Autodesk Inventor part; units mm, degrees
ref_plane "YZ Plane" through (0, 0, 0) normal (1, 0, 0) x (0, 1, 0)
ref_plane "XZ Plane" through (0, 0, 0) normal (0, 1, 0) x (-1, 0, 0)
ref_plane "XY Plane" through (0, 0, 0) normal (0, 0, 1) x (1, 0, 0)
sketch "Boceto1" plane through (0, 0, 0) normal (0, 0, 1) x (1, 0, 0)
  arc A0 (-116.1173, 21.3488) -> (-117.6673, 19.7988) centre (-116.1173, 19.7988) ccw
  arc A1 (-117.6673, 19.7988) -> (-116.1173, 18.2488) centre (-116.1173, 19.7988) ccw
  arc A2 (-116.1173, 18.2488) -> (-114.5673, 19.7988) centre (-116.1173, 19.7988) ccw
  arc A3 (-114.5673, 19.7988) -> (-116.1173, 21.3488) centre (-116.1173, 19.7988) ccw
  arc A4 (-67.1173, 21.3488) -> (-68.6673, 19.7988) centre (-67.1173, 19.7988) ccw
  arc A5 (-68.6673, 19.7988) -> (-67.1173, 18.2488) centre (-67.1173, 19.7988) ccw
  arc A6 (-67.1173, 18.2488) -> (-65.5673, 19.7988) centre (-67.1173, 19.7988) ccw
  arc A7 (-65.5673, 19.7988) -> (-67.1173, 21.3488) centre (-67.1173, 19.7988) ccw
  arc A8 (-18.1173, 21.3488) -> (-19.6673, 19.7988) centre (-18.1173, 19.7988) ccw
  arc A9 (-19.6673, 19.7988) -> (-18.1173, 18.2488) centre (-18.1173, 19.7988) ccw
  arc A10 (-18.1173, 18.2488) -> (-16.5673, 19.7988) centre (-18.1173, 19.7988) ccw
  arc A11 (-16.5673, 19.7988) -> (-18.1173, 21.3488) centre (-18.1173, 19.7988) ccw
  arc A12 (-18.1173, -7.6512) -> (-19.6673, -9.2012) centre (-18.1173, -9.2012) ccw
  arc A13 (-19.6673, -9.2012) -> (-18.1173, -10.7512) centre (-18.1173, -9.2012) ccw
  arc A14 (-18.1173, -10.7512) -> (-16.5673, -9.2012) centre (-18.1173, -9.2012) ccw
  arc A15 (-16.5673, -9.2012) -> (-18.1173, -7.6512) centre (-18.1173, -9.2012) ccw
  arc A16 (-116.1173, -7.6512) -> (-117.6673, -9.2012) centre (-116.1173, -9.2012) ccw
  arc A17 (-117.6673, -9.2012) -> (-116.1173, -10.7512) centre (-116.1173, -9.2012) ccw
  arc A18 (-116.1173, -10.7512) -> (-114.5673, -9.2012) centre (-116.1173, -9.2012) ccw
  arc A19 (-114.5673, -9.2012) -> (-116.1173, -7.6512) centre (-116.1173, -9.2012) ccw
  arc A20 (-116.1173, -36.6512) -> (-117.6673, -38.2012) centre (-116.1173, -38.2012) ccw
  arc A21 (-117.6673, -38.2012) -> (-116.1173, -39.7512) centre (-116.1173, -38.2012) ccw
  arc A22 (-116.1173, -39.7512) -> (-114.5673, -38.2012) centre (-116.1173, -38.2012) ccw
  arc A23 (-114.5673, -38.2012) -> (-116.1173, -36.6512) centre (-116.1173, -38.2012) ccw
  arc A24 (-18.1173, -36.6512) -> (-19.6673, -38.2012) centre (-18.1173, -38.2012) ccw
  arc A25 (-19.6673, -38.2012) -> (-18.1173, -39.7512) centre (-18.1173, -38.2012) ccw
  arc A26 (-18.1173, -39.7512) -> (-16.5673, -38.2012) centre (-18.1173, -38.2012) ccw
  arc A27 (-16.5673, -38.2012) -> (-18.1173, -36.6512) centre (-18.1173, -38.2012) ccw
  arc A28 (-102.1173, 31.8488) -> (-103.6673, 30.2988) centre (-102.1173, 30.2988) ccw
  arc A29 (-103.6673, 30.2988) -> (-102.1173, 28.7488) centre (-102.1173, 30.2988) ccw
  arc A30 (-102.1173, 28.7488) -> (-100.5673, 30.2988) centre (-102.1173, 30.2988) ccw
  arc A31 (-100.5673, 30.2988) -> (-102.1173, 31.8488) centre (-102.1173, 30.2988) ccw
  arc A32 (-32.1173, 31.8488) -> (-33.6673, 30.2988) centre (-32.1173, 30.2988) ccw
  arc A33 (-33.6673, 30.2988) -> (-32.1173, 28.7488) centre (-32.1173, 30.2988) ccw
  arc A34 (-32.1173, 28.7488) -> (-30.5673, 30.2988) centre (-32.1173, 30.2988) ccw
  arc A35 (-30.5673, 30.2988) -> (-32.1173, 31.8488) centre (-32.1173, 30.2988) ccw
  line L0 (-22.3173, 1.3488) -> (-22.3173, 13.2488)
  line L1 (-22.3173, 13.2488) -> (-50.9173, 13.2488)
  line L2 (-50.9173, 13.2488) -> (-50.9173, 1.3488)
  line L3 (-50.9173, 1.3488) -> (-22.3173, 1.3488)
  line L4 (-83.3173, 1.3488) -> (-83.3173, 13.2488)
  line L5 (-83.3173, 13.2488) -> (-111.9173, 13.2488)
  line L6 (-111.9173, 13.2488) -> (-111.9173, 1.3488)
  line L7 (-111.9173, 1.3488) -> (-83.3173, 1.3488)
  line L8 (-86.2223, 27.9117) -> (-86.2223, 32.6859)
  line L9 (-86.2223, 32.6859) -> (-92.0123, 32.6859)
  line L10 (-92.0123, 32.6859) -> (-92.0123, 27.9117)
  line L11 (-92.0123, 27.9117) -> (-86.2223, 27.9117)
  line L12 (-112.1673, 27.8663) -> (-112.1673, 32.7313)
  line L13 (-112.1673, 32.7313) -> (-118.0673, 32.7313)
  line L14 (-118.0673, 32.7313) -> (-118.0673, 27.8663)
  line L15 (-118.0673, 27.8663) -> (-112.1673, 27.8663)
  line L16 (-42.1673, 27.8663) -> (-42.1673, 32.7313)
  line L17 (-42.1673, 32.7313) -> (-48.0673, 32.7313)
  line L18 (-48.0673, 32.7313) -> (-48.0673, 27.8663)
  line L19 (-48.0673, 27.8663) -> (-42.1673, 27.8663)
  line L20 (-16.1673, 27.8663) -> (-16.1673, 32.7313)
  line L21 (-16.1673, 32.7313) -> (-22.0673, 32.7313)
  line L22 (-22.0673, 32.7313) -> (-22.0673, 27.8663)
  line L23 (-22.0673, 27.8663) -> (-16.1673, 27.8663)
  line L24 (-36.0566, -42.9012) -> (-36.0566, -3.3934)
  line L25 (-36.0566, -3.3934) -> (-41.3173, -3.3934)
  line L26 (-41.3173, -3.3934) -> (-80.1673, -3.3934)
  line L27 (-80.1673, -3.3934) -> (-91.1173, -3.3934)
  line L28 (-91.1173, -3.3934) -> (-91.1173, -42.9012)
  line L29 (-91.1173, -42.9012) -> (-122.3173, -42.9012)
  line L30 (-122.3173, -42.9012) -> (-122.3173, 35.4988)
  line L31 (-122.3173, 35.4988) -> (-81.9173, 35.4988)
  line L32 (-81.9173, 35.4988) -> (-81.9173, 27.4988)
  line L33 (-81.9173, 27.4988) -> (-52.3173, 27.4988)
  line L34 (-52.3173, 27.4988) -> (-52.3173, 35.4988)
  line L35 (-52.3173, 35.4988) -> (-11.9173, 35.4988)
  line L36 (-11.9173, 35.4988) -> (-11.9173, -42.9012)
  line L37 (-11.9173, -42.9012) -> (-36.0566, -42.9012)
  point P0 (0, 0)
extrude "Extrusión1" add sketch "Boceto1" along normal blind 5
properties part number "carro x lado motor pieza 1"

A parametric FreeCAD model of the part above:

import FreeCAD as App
import Part
import Sketcher


def add_polygon(sketch, points):
    """Adds a closed chain of lines whose ends are joined by coincident constraints."""
    first, n = sketch.GeometryCount, len(points)
    for a, b in zip(points, points[1:] + points[:1]):
        sketch.addGeometry(Part.LineSegment(App.Vector(*a, 0), App.Vector(*b, 0)), False)
    for i in range(n):
        sketch.addConstraint(Sketcher.Constraint("Coincident", first + i, 2, first + (i + 1) % n, 1))

doc = App.newDocument("Part")
body = doc.addObject("PartDesign::Body", "Body")

# Sketch on XY plane
sketch1 = doc.addObject("Sketcher::SketchObject", "Sketch")
body.addObject(sketch1)
sketch1.AttachmentSupport = (doc.XY_Plane, [""])
sketch1.MapMode = "FlatFace"
add_polygon(sketch1, [(-36.1, -3.4), (-36.1, -42.9), (-11.9, -42.9), (-11.9, 35.5), (-52.3, 35.5), (-52.3, 27.5), (-81.9, 27.5), (-81.9, 35.5), (-122.3, 35.5), (-122.3, -42.9), (-91.1, -42.9), (-91.1, -3.4)])  # lines 0-11
sketch1.addGeometry(Part.Circle(App.Vector(-116.1, -38.2, 0), App.Vector(0, 0, 1), 1.5), False)  # 12
sketch1.addGeometry(Part.Circle(App.Vector(-116.1, -9.2, 0), App.Vector(0, 0, 1), 1.5), False)  # 13
sketch1.addGeometry(Part.Circle(App.Vector(-18.1, -38.2, 0), App.Vector(0, 0, 1), 1.6), False)  # 14
sketch1.addGeometry(Part.Circle(App.Vector(-18.1, -9.2, 0), App.Vector(0, 0, 1), 1.5), False)  # 15
add_polygon(sketch1, [(-83.3, 13.2), (-83.3, 1.3), (-111.9, 1.3), (-111.9, 13.2)])  # lines 16-19
sketch1.addGeometry(Part.Circle(App.Vector(-116.1, 19.8, 0), App.Vector(0, 0, 1), 1.6), False)  # 20
add_polygon(sketch1, [(-112.2, 32.7), (-112.2, 27.9), (-118.1, 27.9), (-118.1, 32.7)])  # lines 21-24
sketch1.addGeometry(Part.Circle(App.Vector(-102.1, 30.3, 0), App.Vector(0, 0, 1), 1.6), False)  # 25
add_polygon(sketch1, [(-86.2, 32.7), (-86.2, 27.9), (-92, 27.9), (-92, 32.7)])  # lines 26-29
add_polygon(sketch1, [(-22.3, 13.2), (-22.3, 1.3), (-50.9, 1.3), (-50.9, 13.2)])  # lines 30-33
sketch1.addGeometry(Part.Circle(App.Vector(-67.1, 19.8, 0), App.Vector(0, 0, 1), 1.6), False)  # 34
add_polygon(sketch1, [(-42.2, 32.7), (-42.2, 27.9), (-48.1, 27.9), (-48.1, 32.7)])  # lines 35-38
sketch1.addGeometry(Part.Circle(App.Vector(-18.1, 19.8, 0), App.Vector(0, 0, 1), 1.6), False)  # 39
sketch1.addGeometry(Part.Circle(App.Vector(-32.1, 30.3, 0), App.Vector(0, 0, 1), 1.6), False)  # 40
add_polygon(sketch1, [(-16.2, 32.7), (-16.2, 27.9), (-22.1, 27.9), (-22.1, 32.7)])  # lines 41-44
sketch1.addConstraint([
    Sketcher.Constraint("Vertical", 0),
    Sketcher.Constraint("Horizontal", 1),
    Sketcher.Constraint("Vertical", 2),
    Sketcher.Constraint("Horizontal", 3),
    Sketcher.Constraint("Vertical", 4),
    Sketcher.Constraint("Horizontal", 5),
    Sketcher.Constraint("Vertical", 6),
    Sketcher.Constraint("Horizontal", 7),
    Sketcher.Constraint("Vertical", 8),
    Sketcher.Constraint("Horizontal", 9),
    Sketcher.Constraint("Vertical", 10),
    Sketcher.Constraint("Horizontal", 11),
    Sketcher.Constraint("Vertical", 16),
    Sketcher.Constraint("Horizontal", 17),
    Sketcher.Constraint("Vertical", 18),
    Sketcher.Constraint("Horizontal", 19),
    Sketcher.Constraint("Vertical", 21),
    Sketcher.Constraint("Horizontal", 22),
    Sketcher.Constraint("Vertical", 23),
    Sketcher.Constraint("Horizontal", 24),
    Sketcher.Constraint("Vertical", 26),
    Sketcher.Constraint("Horizontal", 27),
    Sketcher.Constraint("Vertical", 28),
    Sketcher.Constraint("Horizontal", 29),
    Sketcher.Constraint("Vertical", 30),
    Sketcher.Constraint("Horizontal", 31),
    Sketcher.Constraint("Vertical", 32),
    Sketcher.Constraint("Horizontal", 33),
    Sketcher.Constraint("Vertical", 35),
    Sketcher.Constraint("Horizontal", 36),
    Sketcher.Constraint("Vertical", 37),
    Sketcher.Constraint("Horizontal", 38),
    Sketcher.Constraint("Vertical", 41),
    Sketcher.Constraint("Horizontal", 42),
    Sketcher.Constraint("Vertical", 43),
    Sketcher.Constraint("Horizontal", 44),
    Sketcher.Constraint("Equal", 12, 13),
    Sketcher.Constraint("Equal", 13, 14),
    Sketcher.Constraint("Equal", 14, 15),
    Sketcher.Constraint("Equal", 15, 20),
    Sketcher.Constraint("Equal", 20, 25),
    Sketcher.Constraint("Equal", 25, 34),
    Sketcher.Constraint("Equal", 34, 39),
    Sketcher.Constraint("Equal", 39, 40),
    Sketcher.Constraint("Horizontal", 12, 3, 14, 3),
    Sketcher.Constraint("Horizontal", 13, 3, 15, 3),
    Sketcher.Constraint("Horizontal", 20, 3, 34, 3),
    Sketcher.Constraint("Horizontal", 34, 3, 39, 3),
    Sketcher.Constraint("Horizontal", 25, 3, 40, 3),
    Sketcher.Constraint("Horizontal", 3, 2, 6, 2),
    Sketcher.Constraint("Horizontal", 1, 2, 8, 2),
    Sketcher.Constraint("Horizontal", 17, 2, 30, 2),
    Sketcher.Constraint("Horizontal", 19, 2, 32, 2),
    Sketcher.Constraint("Horizontal", 22, 2, 35, 2),
    Sketcher.Constraint("Horizontal", 24, 2, 37, 2),
    Sketcher.Constraint("Horizontal", 36, 2, 41, 2),
    Sketcher.Constraint("Horizontal", 38, 2, 43, 2),
    Sketcher.Constraint("Vertical", 12, 3, 13, 3),
    Sketcher.Constraint("Vertical", 14, 3, 15, 3),
    Sketcher.Constraint("Vertical", 13, 3, 20, 3),
    Sketcher.Constraint("Vertical", 15, 3, 39, 3),
    Sketcher.Constraint("Equal", 3, 7),
    Sketcher.Constraint("Equal", 19, 31),
    Sketcher.Constraint("Equal", 24, 36),
    Sketcher.Constraint("Equal", 38, 42),
    Sketcher.Constraint("Diameter", 12, 3.1),
    Sketcher.Constraint("DistanceY", 4, 2, 4, 1, 8.0),
    Sketcher.Constraint("DistanceX", 3, 2, 3, 1, 40.4),
    Sketcher.Constraint("DistanceX", 5, 2, 5, 1, 29.6),
    Sketcher.Constraint("DistanceX", 9, 1, 9, 2, 31.2),
    Sketcher.Constraint("DistanceX", 17, 2, 17, 1, 28.6),
    Sketcher.Constraint("DistanceX", 22, 2, 22, 1, 5.9),
    Sketcher.Constraint("DistanceY", 2, 1, 2, 2, 78.4),
    Sketcher.Constraint("DistanceY", 16, 2, 16, 1, 11.9),
    Sketcher.Constraint("DistanceY", 12, 3, 13, 3, 29.0),
    Sketcher.Constraint("DistanceX", 12, 3, 14, 3, 98.0),
    Sketcher.Constraint("DistanceY", 13, 3, 20, 3, 29.0),
    Sketcher.Constraint("DistanceX", 20, 3, 25, 3, 14.0),
    Sketcher.Constraint("DistanceX", 25, 3, 34, 3, 35.0),
    Sketcher.Constraint("DistanceX", 40, 3, 39, 3, 14.0),
    Sketcher.Constraint("DistanceX", 12, 3, 9, 2, 25.0),
    Sketcher.Constraint("DistanceX", 35, 2, 41, 2, 26.0),
    Sketcher.Constraint("DistanceX", 27, 2, 27, 1, 5.79),
    Sketcher.Constraint("DistanceY", 20, 3, 25, 3, 10.5),
    Sketcher.Constraint("DistanceY", 0, 2, 14, 3, 4.7),
    Sketcher.Constraint("DistanceX", 10, 2, 16, 2, 7.8),
    Sketcher.Constraint("DistanceX", 30, 2, 15, 3, 4.2),
    Sketcher.Constraint("DistanceY", 21, 2, 21, 1, 4.865),
    Sketcher.Constraint("DistanceY", 16, 2, 34, 3, 18.45),
    Sketcher.Constraint("DistanceX", 20, 3, 21, 2, 3.95),
    Sketcher.Constraint("DistanceX", 4, 2, 35, 2, 10.15),
    Sketcher.Constraint("DistanceX", 1, 1, 1, 2, 24.1393),
    Sketcher.Constraint("DistanceY", 0, 2, 0, 1, 39.5078),
    Sketcher.Constraint("DistanceY", 26, 2, 26, 1, 4.7742),
    Sketcher.Constraint("DistanceY", -1, 1, 28, 2, 32.686),
    Sketcher.Constraint("DistanceX", 26, 2, 5, 2, 4.305),
    Sketcher.Constraint("DistanceY", 5, 2, 26, 2, 0.413),
    Sketcher.Constraint("DistanceX", 12, 3, -1, 1, 116.1173),
    Sketcher.Constraint("DistanceY", -1, 1, 21, 2, 27.8663),
])
pad1 = doc.addObject("PartDesign::Pad", "Pad")
body.addObject(pad1)
pad1.Profile = sketch1
pad1.Length = 5

doc.recompute()
